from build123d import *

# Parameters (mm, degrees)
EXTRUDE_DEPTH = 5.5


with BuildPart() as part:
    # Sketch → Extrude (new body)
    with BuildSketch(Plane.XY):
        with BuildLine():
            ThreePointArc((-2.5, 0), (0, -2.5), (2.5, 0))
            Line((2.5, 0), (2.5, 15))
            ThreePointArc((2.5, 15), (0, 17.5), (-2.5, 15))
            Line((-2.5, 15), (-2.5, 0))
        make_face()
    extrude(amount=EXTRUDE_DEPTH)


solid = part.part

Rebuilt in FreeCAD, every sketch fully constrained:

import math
import FreeCAD as App
import Part
import Sketcher
from FreeCAD import Vector
Q = App.Units.Quantity

doc = App.newDocument("Part")
body = doc.addObject("PartDesign::Body", "Body")

sketch1 = doc.addObject("Sketcher::SketchObject", "Sketch")
body.addObject(sketch1)
sketch1.AttachmentSupport = (doc.XY_Plane, [""])
sketch1.MapMode = "FlatFace"
sketch1.addGeometry([
    Part.ArcOfCircle(Part.Circle(Vector(0, 0, 0), Vector(0, 0, 1), 2.5), math.radians(180), math.radians(360)),
    Part.LineSegment(Vector(2.5, 0, 0), Vector(2.5, 15, 0)),
    Part.ArcOfCircle(Part.Circle(Vector(0, 15, 0), Vector(0, 0, 1), 2.5), math.radians(0), math.radians(180)),
    Part.LineSegment(Vector(-2.5, 15, 0), Vector(-2.5, 0, 0)),
], False)
sketch1.addConstraint([
    Sketcher.Constraint("Tangent", 0, 2, 1, 1),
    Sketcher.Constraint("Tangent", 1, 2, 2, 1),
    Sketcher.Constraint("Tangent", 2, 2, 3, 1),
    Sketcher.Constraint("Tangent", 3, 2, 0, 1),
    Sketcher.Constraint("Vertical", 1),
    Sketcher.Constraint("Vertical", 3),
    Sketcher.Constraint("Coincident", 0, 3, -1, 1),
    Sketcher.Constraint("Radius", 0, Q("2.5 mm")),
    Sketcher.Constraint("DistanceY", 1, 1, 1, 2, Q("15 mm")),
])
pad1 = doc.addObject("PartDesign::Pad", "Pad")
body.addObject(pad1)
pad1.Profile = sketch1
pad1.Length = 5.5

doc.recompute()
